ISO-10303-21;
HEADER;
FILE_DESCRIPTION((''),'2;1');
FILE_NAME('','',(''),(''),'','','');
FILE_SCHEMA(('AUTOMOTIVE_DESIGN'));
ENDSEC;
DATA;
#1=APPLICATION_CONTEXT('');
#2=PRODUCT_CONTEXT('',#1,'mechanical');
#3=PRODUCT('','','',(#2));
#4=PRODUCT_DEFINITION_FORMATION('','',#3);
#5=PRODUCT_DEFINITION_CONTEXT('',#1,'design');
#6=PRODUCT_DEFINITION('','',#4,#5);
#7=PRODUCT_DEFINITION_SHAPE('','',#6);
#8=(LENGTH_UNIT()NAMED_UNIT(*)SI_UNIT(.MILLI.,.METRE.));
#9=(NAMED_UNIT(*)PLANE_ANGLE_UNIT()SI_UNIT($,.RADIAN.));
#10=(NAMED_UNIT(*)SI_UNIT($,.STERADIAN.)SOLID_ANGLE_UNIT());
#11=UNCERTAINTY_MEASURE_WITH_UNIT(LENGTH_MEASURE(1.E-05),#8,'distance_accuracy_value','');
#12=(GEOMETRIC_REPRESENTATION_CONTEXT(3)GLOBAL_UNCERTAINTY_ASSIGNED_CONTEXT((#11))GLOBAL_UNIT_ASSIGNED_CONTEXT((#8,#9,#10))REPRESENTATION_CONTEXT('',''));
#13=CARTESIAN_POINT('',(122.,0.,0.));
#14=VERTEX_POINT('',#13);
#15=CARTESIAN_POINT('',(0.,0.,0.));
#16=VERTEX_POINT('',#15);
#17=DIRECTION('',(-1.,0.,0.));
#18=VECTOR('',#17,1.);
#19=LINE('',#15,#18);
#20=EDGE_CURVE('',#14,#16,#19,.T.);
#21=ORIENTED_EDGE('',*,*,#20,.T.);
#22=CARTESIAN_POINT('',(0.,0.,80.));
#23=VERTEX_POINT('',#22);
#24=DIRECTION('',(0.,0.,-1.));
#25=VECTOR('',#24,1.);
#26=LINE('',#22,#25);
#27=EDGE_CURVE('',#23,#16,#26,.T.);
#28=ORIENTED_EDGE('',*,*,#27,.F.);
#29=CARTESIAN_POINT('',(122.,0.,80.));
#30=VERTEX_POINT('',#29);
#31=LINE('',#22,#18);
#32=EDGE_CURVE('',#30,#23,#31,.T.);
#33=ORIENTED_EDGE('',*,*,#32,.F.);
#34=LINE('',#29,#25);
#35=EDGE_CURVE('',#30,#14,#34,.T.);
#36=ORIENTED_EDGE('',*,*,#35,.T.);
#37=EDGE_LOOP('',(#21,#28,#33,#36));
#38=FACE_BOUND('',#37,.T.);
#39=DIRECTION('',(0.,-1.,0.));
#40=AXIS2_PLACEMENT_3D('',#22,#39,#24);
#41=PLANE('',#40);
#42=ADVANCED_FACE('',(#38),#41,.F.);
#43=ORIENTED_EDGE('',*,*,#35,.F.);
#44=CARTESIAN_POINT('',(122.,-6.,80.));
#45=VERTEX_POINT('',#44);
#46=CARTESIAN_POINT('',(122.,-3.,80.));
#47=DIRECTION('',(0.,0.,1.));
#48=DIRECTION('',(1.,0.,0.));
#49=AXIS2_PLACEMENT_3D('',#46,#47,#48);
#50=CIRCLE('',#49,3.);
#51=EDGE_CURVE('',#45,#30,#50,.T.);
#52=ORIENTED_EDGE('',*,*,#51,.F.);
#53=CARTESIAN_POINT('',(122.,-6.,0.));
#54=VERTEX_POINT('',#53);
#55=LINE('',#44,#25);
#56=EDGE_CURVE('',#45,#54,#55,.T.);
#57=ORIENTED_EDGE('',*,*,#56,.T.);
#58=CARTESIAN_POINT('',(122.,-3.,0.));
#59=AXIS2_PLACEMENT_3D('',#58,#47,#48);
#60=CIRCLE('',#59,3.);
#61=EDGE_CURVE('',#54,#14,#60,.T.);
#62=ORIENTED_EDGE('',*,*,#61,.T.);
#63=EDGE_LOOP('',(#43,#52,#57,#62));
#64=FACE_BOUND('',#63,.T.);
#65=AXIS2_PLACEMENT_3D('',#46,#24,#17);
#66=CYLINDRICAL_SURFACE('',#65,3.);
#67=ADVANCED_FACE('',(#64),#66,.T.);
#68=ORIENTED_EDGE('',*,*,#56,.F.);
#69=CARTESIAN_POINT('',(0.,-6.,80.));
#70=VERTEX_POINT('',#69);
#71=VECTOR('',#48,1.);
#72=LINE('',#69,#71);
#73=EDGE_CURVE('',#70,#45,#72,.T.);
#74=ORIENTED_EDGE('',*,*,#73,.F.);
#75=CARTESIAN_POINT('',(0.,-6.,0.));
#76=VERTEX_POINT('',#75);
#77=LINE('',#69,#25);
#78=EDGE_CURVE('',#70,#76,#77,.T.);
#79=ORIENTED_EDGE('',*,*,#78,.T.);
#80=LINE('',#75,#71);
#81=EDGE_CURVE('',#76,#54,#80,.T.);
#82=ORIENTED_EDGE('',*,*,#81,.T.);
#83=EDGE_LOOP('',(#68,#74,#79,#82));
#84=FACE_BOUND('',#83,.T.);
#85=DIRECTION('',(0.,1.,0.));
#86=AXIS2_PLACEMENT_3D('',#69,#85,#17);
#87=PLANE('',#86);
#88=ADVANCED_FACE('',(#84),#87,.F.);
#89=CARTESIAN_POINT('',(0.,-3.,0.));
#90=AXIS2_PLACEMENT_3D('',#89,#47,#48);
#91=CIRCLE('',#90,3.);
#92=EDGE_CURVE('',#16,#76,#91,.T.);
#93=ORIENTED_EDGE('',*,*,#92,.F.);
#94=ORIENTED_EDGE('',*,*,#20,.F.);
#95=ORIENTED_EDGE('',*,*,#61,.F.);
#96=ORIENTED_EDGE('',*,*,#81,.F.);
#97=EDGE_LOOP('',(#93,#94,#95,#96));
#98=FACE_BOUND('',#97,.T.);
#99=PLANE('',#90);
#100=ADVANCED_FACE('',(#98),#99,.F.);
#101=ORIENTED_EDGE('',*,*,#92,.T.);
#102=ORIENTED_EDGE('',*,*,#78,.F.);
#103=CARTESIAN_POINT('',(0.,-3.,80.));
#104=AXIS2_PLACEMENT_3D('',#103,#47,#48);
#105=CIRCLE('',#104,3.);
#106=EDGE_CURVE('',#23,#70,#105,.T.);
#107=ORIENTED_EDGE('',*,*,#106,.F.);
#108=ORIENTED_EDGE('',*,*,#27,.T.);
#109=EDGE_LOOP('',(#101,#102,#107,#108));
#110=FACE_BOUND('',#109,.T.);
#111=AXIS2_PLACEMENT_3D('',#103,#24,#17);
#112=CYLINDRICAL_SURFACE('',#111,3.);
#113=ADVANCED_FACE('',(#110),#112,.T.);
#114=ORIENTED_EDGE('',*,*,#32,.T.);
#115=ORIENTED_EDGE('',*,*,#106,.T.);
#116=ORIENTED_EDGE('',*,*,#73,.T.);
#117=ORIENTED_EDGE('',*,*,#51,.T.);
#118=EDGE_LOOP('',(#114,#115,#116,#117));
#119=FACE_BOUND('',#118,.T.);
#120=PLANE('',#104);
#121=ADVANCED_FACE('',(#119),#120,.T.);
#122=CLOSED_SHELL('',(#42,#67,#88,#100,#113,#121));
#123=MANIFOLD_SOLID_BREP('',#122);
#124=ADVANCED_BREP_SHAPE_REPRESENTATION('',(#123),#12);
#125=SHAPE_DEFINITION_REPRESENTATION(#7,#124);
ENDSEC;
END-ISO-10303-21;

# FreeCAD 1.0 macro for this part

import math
import FreeCAD as App
import Part
import Sketcher
from FreeCAD import Vector
Q = App.Units.Quantity

doc = App.newDocument("Part")
params = doc.addObject("Spreadsheet::Sheet", "Params")
for row, (alias, value) in enumerate([
    ("sketch1_radius", "3 mm"),
    ("sketch1_width", "122 mm"),
    ("pad1_length", "80 mm"),
], start=1):
    params.set(f"A{row}", alias)
    params.set(f"B{row}", "=" + value)
    params.setAlias(f"B{row}", alias)

body = doc.addObject("PartDesign::Body", "Body")

# Sketch on XY plane
sketch1 = body.newObject("Sketcher::SketchObject", "Sketch")
sketch1.AttachmentSupport = (doc.getObject("XY_Plane"), [""])
sketch1.MapMode = "FlatFace"
sketch1.addGeometry([
    Part.LineSegment(Vector(122, 0, 0), Vector(0, 0, 0)),
    Part.ArcOfCircle(Part.Circle(Vector(0, -3, 0), Vector(0, 0, 1), 3), math.radians(90), math.radians(270)),
    Part.LineSegment(Vector(0, -6, 0), Vector(122, -6, 0)),
    Part.ArcOfCircle(Part.Circle(Vector(122, -3, 0), Vector(0, 0, 1), 3), math.radians(-90), math.radians(90)),
], False)
sketch1.addConstraint([
    Sketcher.Constraint("Tangent", 0, 2, 1, 1),
    Sketcher.Constraint("Tangent", 1, 2, 2, 1),
    Sketcher.Constraint("Tangent", 2, 2, 3, 1),
    Sketcher.Constraint("Tangent", 3, 2, 0, 1),
    Sketcher.Constraint("Horizontal", 0),
    Sketcher.Constraint("Horizontal", 2),
    Sketcher.Constraint("Coincident", 0, 2, -1, 1),
    Sketcher.Constraint("Radius", 1, Q("3 mm")),
    Sketcher.Constraint("DistanceX", 0, 2, 0, 1, Q("122 mm")),
])
sketch1.setExpression("Constraints[7]", "Params.sketch1_radius")
sketch1.setExpression("Constraints[8]", "Params.sketch1_width")
pad1 = body.newObject("PartDesign::Pad", "Pad")
pad1.Profile = sketch1
pad1.setExpression("Length", "Params.pad1_length")

doc.recompute()
